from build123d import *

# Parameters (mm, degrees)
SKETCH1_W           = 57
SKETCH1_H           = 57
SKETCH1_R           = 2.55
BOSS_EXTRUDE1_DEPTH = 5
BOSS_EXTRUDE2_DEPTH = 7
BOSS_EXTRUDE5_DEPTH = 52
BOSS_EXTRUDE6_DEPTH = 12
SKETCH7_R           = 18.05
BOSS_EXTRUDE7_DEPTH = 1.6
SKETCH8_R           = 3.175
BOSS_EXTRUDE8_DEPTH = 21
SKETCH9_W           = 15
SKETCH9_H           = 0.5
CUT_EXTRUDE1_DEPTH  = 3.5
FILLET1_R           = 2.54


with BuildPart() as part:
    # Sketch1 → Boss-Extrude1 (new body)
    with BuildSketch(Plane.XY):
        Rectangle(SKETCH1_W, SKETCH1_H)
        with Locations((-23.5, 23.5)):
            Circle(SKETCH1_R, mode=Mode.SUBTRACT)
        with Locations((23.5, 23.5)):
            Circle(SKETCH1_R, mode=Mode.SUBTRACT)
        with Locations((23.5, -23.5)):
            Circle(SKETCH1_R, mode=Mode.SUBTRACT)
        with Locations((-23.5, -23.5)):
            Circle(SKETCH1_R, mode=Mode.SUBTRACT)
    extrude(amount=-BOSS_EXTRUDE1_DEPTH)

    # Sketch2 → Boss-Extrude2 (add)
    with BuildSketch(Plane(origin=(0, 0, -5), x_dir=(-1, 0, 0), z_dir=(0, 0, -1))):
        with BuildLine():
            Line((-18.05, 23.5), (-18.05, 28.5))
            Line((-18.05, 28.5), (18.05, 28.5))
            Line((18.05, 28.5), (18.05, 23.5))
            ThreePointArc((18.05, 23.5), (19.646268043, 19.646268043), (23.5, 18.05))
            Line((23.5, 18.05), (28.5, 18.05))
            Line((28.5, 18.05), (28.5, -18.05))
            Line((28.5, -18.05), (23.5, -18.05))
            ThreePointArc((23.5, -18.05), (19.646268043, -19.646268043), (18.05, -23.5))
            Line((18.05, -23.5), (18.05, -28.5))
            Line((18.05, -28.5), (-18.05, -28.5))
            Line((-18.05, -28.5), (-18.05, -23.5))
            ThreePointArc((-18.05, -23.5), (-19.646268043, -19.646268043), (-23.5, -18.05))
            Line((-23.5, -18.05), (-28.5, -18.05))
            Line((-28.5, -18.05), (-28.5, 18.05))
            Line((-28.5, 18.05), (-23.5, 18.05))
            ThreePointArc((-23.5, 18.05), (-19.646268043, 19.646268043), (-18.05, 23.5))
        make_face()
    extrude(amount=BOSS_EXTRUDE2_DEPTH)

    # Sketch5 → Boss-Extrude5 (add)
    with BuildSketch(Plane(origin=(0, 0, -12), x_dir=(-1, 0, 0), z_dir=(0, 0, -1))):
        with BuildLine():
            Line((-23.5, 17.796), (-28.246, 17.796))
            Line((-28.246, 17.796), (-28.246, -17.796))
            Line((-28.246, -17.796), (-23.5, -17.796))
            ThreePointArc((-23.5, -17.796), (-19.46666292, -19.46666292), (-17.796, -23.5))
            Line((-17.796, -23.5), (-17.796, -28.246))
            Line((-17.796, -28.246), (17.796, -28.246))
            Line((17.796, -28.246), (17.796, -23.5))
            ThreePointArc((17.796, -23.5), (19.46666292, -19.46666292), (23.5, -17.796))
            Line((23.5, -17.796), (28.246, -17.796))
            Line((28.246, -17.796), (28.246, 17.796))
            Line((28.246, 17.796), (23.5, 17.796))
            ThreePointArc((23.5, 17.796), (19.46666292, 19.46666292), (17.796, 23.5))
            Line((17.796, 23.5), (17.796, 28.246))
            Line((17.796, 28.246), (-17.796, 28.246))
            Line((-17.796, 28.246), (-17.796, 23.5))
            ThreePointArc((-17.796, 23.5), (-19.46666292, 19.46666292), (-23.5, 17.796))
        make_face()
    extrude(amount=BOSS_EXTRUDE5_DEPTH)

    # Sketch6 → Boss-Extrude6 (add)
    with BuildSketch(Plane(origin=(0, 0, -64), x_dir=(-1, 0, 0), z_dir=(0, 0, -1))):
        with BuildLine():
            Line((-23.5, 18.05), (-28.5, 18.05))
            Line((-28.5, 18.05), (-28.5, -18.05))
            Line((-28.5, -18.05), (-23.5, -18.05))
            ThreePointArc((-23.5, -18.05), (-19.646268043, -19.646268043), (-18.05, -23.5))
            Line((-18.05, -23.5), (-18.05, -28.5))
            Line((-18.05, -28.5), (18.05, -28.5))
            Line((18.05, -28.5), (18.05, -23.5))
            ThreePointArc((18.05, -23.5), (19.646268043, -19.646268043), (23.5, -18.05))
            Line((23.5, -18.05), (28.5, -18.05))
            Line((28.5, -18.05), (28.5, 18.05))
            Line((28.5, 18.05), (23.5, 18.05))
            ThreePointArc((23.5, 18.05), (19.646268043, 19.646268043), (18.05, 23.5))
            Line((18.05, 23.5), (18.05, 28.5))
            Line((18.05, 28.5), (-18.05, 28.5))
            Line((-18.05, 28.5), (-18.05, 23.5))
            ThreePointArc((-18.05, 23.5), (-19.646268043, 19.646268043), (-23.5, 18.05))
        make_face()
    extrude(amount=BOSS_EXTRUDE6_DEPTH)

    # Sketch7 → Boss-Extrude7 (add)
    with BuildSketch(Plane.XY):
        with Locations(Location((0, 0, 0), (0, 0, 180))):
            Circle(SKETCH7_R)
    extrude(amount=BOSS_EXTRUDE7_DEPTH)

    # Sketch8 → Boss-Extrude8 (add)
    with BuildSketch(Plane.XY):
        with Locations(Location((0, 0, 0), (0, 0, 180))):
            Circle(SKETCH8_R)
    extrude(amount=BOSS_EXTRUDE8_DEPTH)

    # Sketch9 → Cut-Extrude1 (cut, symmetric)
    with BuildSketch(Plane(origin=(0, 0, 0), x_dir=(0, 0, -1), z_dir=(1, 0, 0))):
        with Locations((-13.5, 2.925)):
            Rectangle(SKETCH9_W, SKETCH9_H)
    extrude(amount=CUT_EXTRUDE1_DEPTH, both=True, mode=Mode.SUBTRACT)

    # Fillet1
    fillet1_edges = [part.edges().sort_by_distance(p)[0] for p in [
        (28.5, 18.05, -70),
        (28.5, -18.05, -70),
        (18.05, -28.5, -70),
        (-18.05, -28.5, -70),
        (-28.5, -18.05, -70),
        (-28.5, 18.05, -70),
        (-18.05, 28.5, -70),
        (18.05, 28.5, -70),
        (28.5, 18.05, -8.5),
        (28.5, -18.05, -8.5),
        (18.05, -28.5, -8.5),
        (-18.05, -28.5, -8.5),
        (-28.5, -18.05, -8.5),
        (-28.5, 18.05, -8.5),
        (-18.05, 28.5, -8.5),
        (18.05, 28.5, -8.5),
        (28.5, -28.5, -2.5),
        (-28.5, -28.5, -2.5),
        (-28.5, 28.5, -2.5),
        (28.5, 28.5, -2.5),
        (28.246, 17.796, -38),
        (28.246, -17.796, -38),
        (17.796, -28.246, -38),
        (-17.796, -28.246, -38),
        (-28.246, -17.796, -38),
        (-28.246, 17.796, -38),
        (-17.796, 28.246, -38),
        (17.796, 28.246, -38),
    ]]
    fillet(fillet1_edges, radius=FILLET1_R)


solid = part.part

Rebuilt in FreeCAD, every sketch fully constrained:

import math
import FreeCAD as App
import Part
import Sketcher

V = App.Vector


def edges_at(feature, points):
    """Names of the edges that pass closest to the given points."""
    edges = feature.Shape.Edges
    near = lambda p: min(range(len(edges)), key=lambda i: edges[i].distToShape(Part.Vertex(*p))[0])
    return sorted({f"Edge{near(p) + 1}" for p in points})

doc = App.newDocument("Part")
body = doc.addObject("PartDesign::Body", "Body")

sketch1 = body.newObject("Sketcher::SketchObject", "Sketch")
sketch1.AttachmentSupport = (doc.getObject("XY_Plane"), [""])
sketch1.MapMode = "FlatFace"
sketch1.addGeometry([
    Part.LineSegment(V(-28.5, 28.5, 0), V(-28.5, -28.5, 0)),
    Part.LineSegment(V(-28.5, -28.5, 0), V(28.5, -28.5, 0)),
    Part.LineSegment(V(28.5, -28.5, 0), V(28.5, 28.5, 0)),
    Part.LineSegment(V(28.5, 28.5, 0), V(-28.5, 28.5, 0)),
    Part.Circle(V(-23.5, -23.5, 0), V(0, 0, 1), 2.5),
    Part.Circle(V(23.5, -23.5, 0), V(0, 0, 1), 2.5),
    Part.Circle(V(-23.5, 23.5, 0), V(0, 0, 1), 2.5),
    Part.Circle(V(23.5, 23.5, 0), V(0, 0, 1), 2.5),
], False)
sketch1.addConstraint([
    Sketcher.Constraint("Coincident", 0, 2, 1, 1),
    Sketcher.Constraint("Coincident", 1, 2, 2, 1),
    Sketcher.Constraint("Coincident", 2, 2, 3, 1),
    Sketcher.Constraint("Coincident", 3, 2, 0, 1),
    Sketcher.Constraint("Vertical", 0),
    Sketcher.Constraint("Horizontal", 1),
    Sketcher.Constraint("Vertical", 2),
    Sketcher.Constraint("Horizontal", 3),
    Sketcher.Constraint("Equal", 4, 5),
    Sketcher.Constraint("Equal", 5, 6),
    Sketcher.Constraint("Equal", 6, 7),
    Sketcher.Constraint("Symmetric", 5, 3, 6, 3, -1, 1),
    Sketcher.Constraint("Symmetric", 4, 3, 7, 3, -1, 1),
    Sketcher.Constraint("Symmetric", 0, 2, 2, 2, -1, 1),
    Sketcher.Constraint("Symmetric", 4, 3, 5, 3, -2),
    Sketcher.Constraint("Equal", 3, 0),
    Sketcher.Constraint("Diameter", 4, 5.1),
    Sketcher.Constraint("DistanceX", 1, 1, 1, 2, 57.0),
    Sketcher.Constraint("DistanceX", 4, 3, 5, 3, 47.0),
    Sketcher.Constraint("DistanceY", 4, 3, 6, 3, 47.0),
])
pad1 = body.newObject("PartDesign::Pad", "Pad")
pad1.Profile = sketch1
pad1.Length = 5
pad1.Reversed = True

sketch2 = body.newObject("Sketcher::SketchObject", "Sketch001")
sketch2.AttachmentSupport = (doc.getObject("XY_Plane"), [""])
sketch2.MapMode = "FlatFace"
sketch2.AttachmentOffset = App.Placement(V(0, 0, -5), App.Rotation())
sketch2.addGeometry([
    Part.LineSegment(V(18, 28, 0), V(18, 24, 0)),
    Part.ArcOfCircle(Part.Circle(V(24, 24, 0), V(0, 0, 1), 5), math.radians(-180), math.radians(-90)),
    Part.LineSegment(V(24, 18, 0), V(28, 18, 0)),
    Part.LineSegment(V(28, 18, 0), V(28, -18, 0)),
    Part.LineSegment(V(28, -18, 0), V(24, -18, 0)),
    Part.ArcOfCircle(Part.Circle(V(24, -24, 0), V(0, 0, 1), 5), math.radians(90), math.radians(180)),
    Part.LineSegment(V(18, -24, 0), V(18, -28, 0)),
    Part.LineSegment(V(18, -28, 0), V(-18, -28, 0)),
    Part.LineSegment(V(-18, -28, 0), V(-18, -24, 0)),
    Part.ArcOfCircle(Part.Circle(V(-24, -24, 0), V(0, 0, 1), 5), math.radians(0), math.radians(90)),
    Part.LineSegment(V(-24, -18, 0), V(-28, -18, 0)),
    Part.LineSegment(V(-28, -18, 0), V(-28, 18, 0)),
    Part.LineSegment(V(-28, 18, 0), V(-24, 18, 0)),
    Part.ArcOfCircle(Part.Circle(V(-24, 24, 0), V(0, 0, 1), 5), math.radians(-90), math.radians(0)),
    Part.LineSegment(V(-18, 24, 0), V(-18, 28, 0)),
    Part.LineSegment(V(-18, 28, 0), V(18, 28, 0)),
], False)
sketch2.addConstraint([
    Sketcher.Constraint("Tangent", 0, 2, 1, 1),
    Sketcher.Constraint("Tangent", 1, 2, 2, 1),
    Sketcher.Constraint("Coincident", 2, 2, 3, 1),
    Sketcher.Constraint("Coincident", 3, 2, 4, 1),
    Sketcher.Constraint("Tangent", 4, 2, 5, 1),
    Sketcher.Constraint("Tangent", 5, 2, 6, 1),
    Sketcher.Constraint("Coincident", 6, 2, 7, 1),
    Sketcher.Constraint("Coincident", 7, 2, 8, 1),
    Sketcher.Constraint("Tangent", 8, 2, 9, 1),
    Sketcher.Constraint("Tangent", 9, 2, 10, 1),
    Sketcher.Constraint("Coincident", 10, 2, 11, 1),
    Sketcher.Constraint("Coincident", 11, 2, 12, 1),
    Sketcher.Constraint("Tangent", 12, 2, 13, 1),
    Sketcher.Constraint("Tangent", 13, 2, 14, 1),
    Sketcher.Constraint("Coincident", 14, 2, 15, 1),
    Sketcher.Constraint("Coincident", 15, 2, 0, 1),
    Sketcher.Constraint("Vertical", 0),
    Sketcher.Constraint("Horizontal", 2),
    Sketcher.Constraint("Vertical", 3),
    Sketcher.Constraint("Horizontal", 4),
    Sketcher.Constraint("Vertical", 6),
    Sketcher.Constraint("Horizontal", 7),
    Sketcher.Constraint("Vertical", 8),
    Sketcher.Constraint("Horizontal", 10),
    Sketcher.Constraint("Vertical", 11),
    Sketcher.Constraint("Horizontal", 12),
    Sketcher.Constraint("Vertical", 14),
    Sketcher.Constraint("Horizontal", 15),
    Sketcher.Constraint("Equal", 1, 5),
    Sketcher.Constraint("Equal", 5, 9),
    Sketcher.Constraint("Equal", 9, 13),
    Sketcher.Constraint("Symmetric", 1, 3, 9, 3, -1, 1),
    Sketcher.Constraint("Symmetric", 5, 3, 13, 3, -1, 1),
    Sketcher.Constraint("Symmetric", 5, 3, 9, 3, -2),
    Sketcher.Constraint("Equal", 4, 10),
    Sketcher.Constraint("Equal", 12, 0),
    Sketcher.Constraint("Equal", 15, 3),
    Sketcher.Constraint("Equal", 0, 6),
    Sketcher.Constraint("DistanceX", 2, 1, 2, 2, 5.0),
    Sketcher.Constraint("Radius", 1, 5.45),
    Sketcher.Constraint("DistanceX", 7, 2, 7, 1, 36.1),
])
pad2 = body.newObject("PartDesign::Pad", "Pad001")
pad2.Profile = sketch2
pad2.Length = 7
pad2.Reversed = True

sketch3 = body.newObject("Sketcher::SketchObject", "Sketch002")
sketch3.AttachmentSupport = (doc.getObject("XY_Plane"), [""])
sketch3.MapMode = "FlatFace"
sketch3.AttachmentOffset = App.Placement(V(0, 0, -12), App.Rotation())
sketch3.addGeometry([
    Part.LineSegment(V(23.5, 17.8, 0), V(28.2, 17.8, 0)),
    Part.LineSegment(V(28.2, 17.8, 0), V(28.2, -17.8, 0)),
    Part.LineSegment(V(28.2, -17.8, 0), V(23.5, -17.8, 0)),
    Part.ArcOfCircle(Part.Circle(V(23.5, -23.5, 0), V(0, 0, 1), 5.7), math.radians(90), math.radians(180)),
    Part.LineSegment(V(17.8, -23.5, 0), V(17.8, -28.2, 0)),
    Part.LineSegment(V(17.8, -28.2, 0), V(-17.8, -28.2, 0)),
    Part.LineSegment(V(-17.8, -28.2, 0), V(-17.8, -23.5, 0)),
    Part.ArcOfCircle(Part.Circle(V(-23.5, -23.5, 0), V(0, 0, 1), 5.7), math.radians(0), math.radians(90)),
    Part.LineSegment(V(-23.5, -17.8, 0), V(-28.2, -17.8, 0)),
    Part.LineSegment(V(-28.2, -17.8, 0), V(-28.2, 17.8, 0)),
    Part.LineSegment(V(-28.2, 17.8, 0), V(-23.5, 17.8, 0)),
    Part.ArcOfCircle(Part.Circle(V(-23.5, 23.5, 0), V(0, 0, 1), 5.7), math.radians(-90), math.radians(0)),
    Part.LineSegment(V(-17.8, 23.5, 0), V(-17.8, 28.2, 0)),
    Part.LineSegment(V(-17.8, 28.2, 0), V(17.8, 28.2, 0)),
    Part.LineSegment(V(17.8, 28.2, 0), V(17.8, 23.5, 0)),
    Part.ArcOfCircle(Part.Circle(V(23.5, 23.5, 0), V(0, 0, 1), 5.7), math.radians(180), math.radians(270)),
], False)
sketch3.addConstraint([
    Sketcher.Constraint("Coincident", 0, 2, 1, 1),
    Sketcher.Constraint("Coincident", 1, 2, 2, 1),
    Sketcher.Constraint("Tangent", 2, 2, 3, 1),
    Sketcher.Constraint("Tangent", 3, 2, 4, 1),
    Sketcher.Constraint("Coincident", 4, 2, 5, 1),
    Sketcher.Constraint("Coincident", 5, 2, 6, 1),
    Sketcher.Constraint("Tangent", 6, 2, 7, 1),
    Sketcher.Constraint("Tangent", 7, 2, 8, 1),
    Sketcher.Constraint("Coincident", 8, 2, 9, 1),
    Sketcher.Constraint("Coincident", 9, 2, 10, 1),
    Sketcher.Constraint("Tangent", 10, 2, 11, 1),
    Sketcher.Constraint("Tangent", 11, 2, 12, 1),
    Sketcher.Constraint("Coincident", 12, 2, 13, 1),
    Sketcher.Constraint("Coincident", 13, 2, 14, 1),
    Sketcher.Constraint("Tangent", 14, 2, 15, 1),
    Sketcher.Constraint("Tangent", 15, 2, 0, 1),
    Sketcher.Constraint("Horizontal", 0),
    Sketcher.Constraint("Vertical", 1),
    Sketcher.Constraint("Horizontal", 2),
    Sketcher.Constraint("Vertical", 4),
    Sketcher.Constraint("Horizontal", 5),
    Sketcher.Constraint("Vertical", 6),
    Sketcher.Constraint("Horizontal", 8),
    Sketcher.Constraint("Vertical", 9),
    Sketcher.Constraint("Horizontal", 10),
    Sketcher.Constraint("Vertical", 12),
    Sketcher.Constraint("Horizontal", 13),
    Sketcher.Constraint("Vertical", 14),
    Sketcher.Constraint("Equal", 3, 7),
    Sketcher.Constraint("Equal", 7, 11),
    Sketcher.Constraint("Equal", 11, 15),
    Sketcher.Constraint("Symmetric", 3, 3, 11, 3, -1, 1),
    Sketcher.Constraint("Symmetric", 7, 3, 15, 3, -1, 1),
    Sketcher.Constraint("Symmetric", 3, 3, 7, 3, -2),
    Sketcher.Constraint("Equal", 2, 8),
    Sketcher.Constraint("Equal", 13, 1),
    Sketcher.Constraint("Equal", 10, 4),
    Sketcher.Constraint("Equal", 6, 12),
    Sketcher.Constraint("Radius", 3, 5.704),
    Sketcher.Constraint("DistanceX", 7, 3, 3, 3, 47.0),
    Sketcher.Constraint("DistanceX", 0, 1, 0, 2, 4.746),
])
pad3 = body.newObject("PartDesign::Pad", "Pad002")
pad3.Profile = sketch3
pad3.Length = 52
pad3.Reversed = True

sketch4 = body.newObject("Sketcher::SketchObject", "Sketch003")
sketch4.AttachmentSupport = (doc.getObject("XY_Plane"), [""])
sketch4.MapMode = "FlatFace"
sketch4.AttachmentOffset = App.Placement(V(0, 0, -64), App.Rotation())
sketch4.addGeometry([
    Part.LineSegment(V(24, 18, 0), V(28, 18, 0)),
    Part.LineSegment(V(28, 18, 0), V(28, -18, 0)),
    Part.LineSegment(V(28, -18, 0), V(24, -18, 0)),
    Part.ArcOfCircle(Part.Circle(V(24, -24, 0), V(0, 0, 1), 5), math.radians(90), math.radians(180)),
    Part.LineSegment(V(18, -24, 0), V(18, -28, 0)),
    Part.LineSegment(V(18, -28, 0), V(-18, -28, 0)),
    Part.LineSegment(V(-18, -28, 0), V(-18, -24, 0)),
    Part.ArcOfCircle(Part.Circle(V(-24, -24, 0), V(0, 0, 1), 5), math.radians(0), math.radians(90)),
    Part.LineSegment(V(-24, -18, 0), V(-28, -18, 0)),
    Part.LineSegment(V(-28, -18, 0), V(-28, 18, 0)),
    Part.LineSegment(V(-28, 18, 0), V(-24, 18, 0)),
    Part.ArcOfCircle(Part.Circle(V(-24, 24, 0), V(0, 0, 1), 5), math.radians(-90), math.radians(0)),
    Part.LineSegment(V(-18, 24, 0), V(-18, 28, 0)),
    Part.LineSegment(V(-18, 28, 0), V(18, 28, 0)),
    Part.LineSegment(V(18, 28, 0), V(18, 24, 0)),
    Part.ArcOfCircle(Part.Circle(V(24, 24, 0), V(0, 0, 1), 5), math.radians(-180), math.radians(-90)),
], False)
sketch4.addConstraint([
    Sketcher.Constraint("Coincident", 0, 2, 1, 1),
    Sketcher.Constraint("Coincident", 1, 2, 2, 1),
    Sketcher.Constraint("Tangent", 2, 2, 3, 1),
    Sketcher.Constraint("Tangent", 3, 2, 4, 1),
    Sketcher.Constraint("Coincident", 4, 2, 5, 1),
    Sketcher.Constraint("Coincident", 5, 2, 6, 1),
    Sketcher.Constraint("Tangent", 6, 2, 7, 1),
    Sketcher.Constraint("Tangent", 7, 2, 8, 1),
    Sketcher.Constraint("Coincident", 8, 2, 9, 1),
    Sketcher.Constraint("Coincident", 9, 2, 10, 1),
    Sketcher.Constraint("Tangent", 10, 2, 11, 1),
    Sketcher.Constraint("Tangent", 11, 2, 12, 1),
    Sketcher.Constraint("Coincident", 12, 2, 13, 1),
    Sketcher.Constraint("Coincident", 13, 2, 14, 1),
    Sketcher.Constraint("Tangent", 14, 2, 15, 1),
    Sketcher.Constraint("Tangent", 15, 2, 0, 1),
    Sketcher.Constraint("Horizontal", 0),
    Sketcher.Constraint("Vertical", 1),
    Sketcher.Constraint("Horizontal", 2),
    Sketcher.Constraint("Vertical", 4),
    Sketcher.Constraint("Horizontal", 5),
    Sketcher.Constraint("Vertical", 6),
    Sketcher.Constraint("Horizontal", 8),
    Sketcher.Constraint("Vertical", 9),
    Sketcher.Constraint("Horizontal", 10),
    Sketcher.Constraint("Vertical", 12),
    Sketcher.Constraint("Horizontal", 13),
    Sketcher.Constraint("Vertical", 14),
    Sketcher.Constraint("Equal", 3, 7),
    Sketcher.Constraint("Equal", 7, 11),
    Sketcher.Constraint("Equal", 11, 15),
    Sketcher.Constraint("Symmetric", 3, 3, 11, 3, -1, 1),
    Sketcher.Constraint("Symmetric", 7, 3, 15, 3, -1, 1),
    Sketcher.Constraint("Symmetric", 3, 3, 7, 3, -2),
    Sketcher.Constraint("Equal", 2, 8),
    Sketcher.Constraint("Equal", 13, 1),
    Sketcher.Constraint("Equal", 10, 4),
    Sketcher.Constraint("Equal", 6, 12),
    Sketcher.Constraint("DistanceX", 0, 1, 0, 2, 5.0),
    Sketcher.Constraint("Radius", 3, 5.45),
    Sketcher.Constraint("DistanceX", 5, 2, 5, 1, 36.1),
])
pad4 = body.newObject("PartDesign::Pad", "Pad003")
pad4.Profile = sketch4
pad4.Length = 12
pad4.Reversed = True

sketch5 = body.newObject("Sketcher::SketchObject", "Sketch004")
sketch5.AttachmentSupport = (doc.getObject("XY_Plane"), [""])
sketch5.MapMode = "FlatFace"
sketch5.addGeometry(Part.Circle(V(0, 0, 0), V(0, 0, 1), 18), False)
sketch5.addConstraint([
    Sketcher.Constraint("Coincident", 0, 3, -1, 1),
    Sketcher.Constraint("Diameter", 0, 36.1),
])
pad5 = body.newObject("PartDesign::Pad", "Pad004")
pad5.Profile = sketch5
pad5.Length = 1.6

sketch6 = body.newObject("Sketcher::SketchObject", "Sketch005")
sketch6.AttachmentSupport = (doc.getObject("XY_Plane"), [""])
sketch6.MapMode = "FlatFace"
sketch6.addGeometry(Part.Circle(V(0, 0, 0), V(0, 0, 1), 3.2), False)
sketch6.addConstraint([
    Sketcher.Constraint("Coincident", 0, 3, -1, 1),
    Sketcher.Constraint("Diameter", 0, 6.35),
])
pad6 = body.newObject("PartDesign::Pad", "Pad005")
pad6.Profile = sketch6
pad6.Length = 21

sketch7 = body.newObject("Sketcher::SketchObject", "Sketch006")
sketch7.AttachmentSupport = (doc.getObject("YZ_Plane"), [""])
sketch7.MapMode = "FlatFace"
sketch7.addGeometry([
    Part.LineSegment(V(3.2, 21, 0), V(2.7, 21, 0)),
    Part.LineSegment(V(2.7, 21, 0), V(2.7, 6, 0)),
    Part.LineSegment(V(2.7, 6, 0), V(3.2, 6, 0)),
    Part.LineSegment(V(3.2, 6, 0), V(3.2, 21, 0)),
], False)
sketch7.addConstraint([
    Sketcher.Constraint("Coincident", 0, 2, 1, 1),
    Sketcher.Constraint("Coincident", 1, 2, 2, 1),
    Sketcher.Constraint("Coincident", 2, 2, 3, 1),
    Sketcher.Constraint("Coincident", 3, 2, 0, 1),
    Sketcher.Constraint("Horizontal", 0),
    Sketcher.Constraint("Vertical", 1),
    Sketcher.Constraint("Horizontal", 2),
    Sketcher.Constraint("Vertical", 3),
    Sketcher.Constraint("DistanceY", 1, 2, 1, 1, 15.0),
    Sketcher.Constraint("DistanceX", 0, 2, 0, 1, 0.5),
    Sketcher.Constraint("DistanceY", -1, 1, 0, 2, 21.0),
    Sketcher.Constraint("DistanceX", -1, 1, 0, 2, 2.675),
])
pocket1 = body.newObject("PartDesign::Pocket", "Pocket")
pocket1.Profile = sketch7
pocket1.Length = 7
pocket1.Midplane = True
doc.recompute()

fillet = body.newObject("PartDesign::Fillet", "Fillet")
fillet.Base = (pocket1, edges_at(pocket1, [
    (28.5, 18.05, -70),
    (28.5, -18.05, -70),
    (18.05, -28.5, -70),
    (-18.05, -28.5, -70),
    (-28.5, -18.05, -70),
    (-28.5, 18.05, -70),
    (-18.05, 28.5, -70),
    (18.05, 28.5, -70),
    (28.5, 18.05, -8.5),
    (28.5, -18.05, -8.5),
    (18.05, -28.5, -8.5),
    (-18.05, -28.5, -8.5),
    (-28.5, -18.05, -8.5),
    (-28.5, 18.05, -8.5),
    (-18.05, 28.5, -8.5),
    (18.05, 28.5, -8.5),
    (28.5, -28.5, -2.5),
    (-28.5, -28.5, -2.5),
    (-28.5, 28.5, -2.5),
    (28.5, 28.5, -2.5),
    (28.246, 17.796, -38),
    (28.246, -17.796, -38),
    (17.796, -28.246, -38),
    (-17.796, -28.246, -38),
    (-28.246, -17.796, -38),
    (-28.246, 17.796, -38),
    (-17.796, 28.246, -38),
    (17.796, 28.246, -38),
]))
fillet.Radius = 2.54

doc.recompute()
